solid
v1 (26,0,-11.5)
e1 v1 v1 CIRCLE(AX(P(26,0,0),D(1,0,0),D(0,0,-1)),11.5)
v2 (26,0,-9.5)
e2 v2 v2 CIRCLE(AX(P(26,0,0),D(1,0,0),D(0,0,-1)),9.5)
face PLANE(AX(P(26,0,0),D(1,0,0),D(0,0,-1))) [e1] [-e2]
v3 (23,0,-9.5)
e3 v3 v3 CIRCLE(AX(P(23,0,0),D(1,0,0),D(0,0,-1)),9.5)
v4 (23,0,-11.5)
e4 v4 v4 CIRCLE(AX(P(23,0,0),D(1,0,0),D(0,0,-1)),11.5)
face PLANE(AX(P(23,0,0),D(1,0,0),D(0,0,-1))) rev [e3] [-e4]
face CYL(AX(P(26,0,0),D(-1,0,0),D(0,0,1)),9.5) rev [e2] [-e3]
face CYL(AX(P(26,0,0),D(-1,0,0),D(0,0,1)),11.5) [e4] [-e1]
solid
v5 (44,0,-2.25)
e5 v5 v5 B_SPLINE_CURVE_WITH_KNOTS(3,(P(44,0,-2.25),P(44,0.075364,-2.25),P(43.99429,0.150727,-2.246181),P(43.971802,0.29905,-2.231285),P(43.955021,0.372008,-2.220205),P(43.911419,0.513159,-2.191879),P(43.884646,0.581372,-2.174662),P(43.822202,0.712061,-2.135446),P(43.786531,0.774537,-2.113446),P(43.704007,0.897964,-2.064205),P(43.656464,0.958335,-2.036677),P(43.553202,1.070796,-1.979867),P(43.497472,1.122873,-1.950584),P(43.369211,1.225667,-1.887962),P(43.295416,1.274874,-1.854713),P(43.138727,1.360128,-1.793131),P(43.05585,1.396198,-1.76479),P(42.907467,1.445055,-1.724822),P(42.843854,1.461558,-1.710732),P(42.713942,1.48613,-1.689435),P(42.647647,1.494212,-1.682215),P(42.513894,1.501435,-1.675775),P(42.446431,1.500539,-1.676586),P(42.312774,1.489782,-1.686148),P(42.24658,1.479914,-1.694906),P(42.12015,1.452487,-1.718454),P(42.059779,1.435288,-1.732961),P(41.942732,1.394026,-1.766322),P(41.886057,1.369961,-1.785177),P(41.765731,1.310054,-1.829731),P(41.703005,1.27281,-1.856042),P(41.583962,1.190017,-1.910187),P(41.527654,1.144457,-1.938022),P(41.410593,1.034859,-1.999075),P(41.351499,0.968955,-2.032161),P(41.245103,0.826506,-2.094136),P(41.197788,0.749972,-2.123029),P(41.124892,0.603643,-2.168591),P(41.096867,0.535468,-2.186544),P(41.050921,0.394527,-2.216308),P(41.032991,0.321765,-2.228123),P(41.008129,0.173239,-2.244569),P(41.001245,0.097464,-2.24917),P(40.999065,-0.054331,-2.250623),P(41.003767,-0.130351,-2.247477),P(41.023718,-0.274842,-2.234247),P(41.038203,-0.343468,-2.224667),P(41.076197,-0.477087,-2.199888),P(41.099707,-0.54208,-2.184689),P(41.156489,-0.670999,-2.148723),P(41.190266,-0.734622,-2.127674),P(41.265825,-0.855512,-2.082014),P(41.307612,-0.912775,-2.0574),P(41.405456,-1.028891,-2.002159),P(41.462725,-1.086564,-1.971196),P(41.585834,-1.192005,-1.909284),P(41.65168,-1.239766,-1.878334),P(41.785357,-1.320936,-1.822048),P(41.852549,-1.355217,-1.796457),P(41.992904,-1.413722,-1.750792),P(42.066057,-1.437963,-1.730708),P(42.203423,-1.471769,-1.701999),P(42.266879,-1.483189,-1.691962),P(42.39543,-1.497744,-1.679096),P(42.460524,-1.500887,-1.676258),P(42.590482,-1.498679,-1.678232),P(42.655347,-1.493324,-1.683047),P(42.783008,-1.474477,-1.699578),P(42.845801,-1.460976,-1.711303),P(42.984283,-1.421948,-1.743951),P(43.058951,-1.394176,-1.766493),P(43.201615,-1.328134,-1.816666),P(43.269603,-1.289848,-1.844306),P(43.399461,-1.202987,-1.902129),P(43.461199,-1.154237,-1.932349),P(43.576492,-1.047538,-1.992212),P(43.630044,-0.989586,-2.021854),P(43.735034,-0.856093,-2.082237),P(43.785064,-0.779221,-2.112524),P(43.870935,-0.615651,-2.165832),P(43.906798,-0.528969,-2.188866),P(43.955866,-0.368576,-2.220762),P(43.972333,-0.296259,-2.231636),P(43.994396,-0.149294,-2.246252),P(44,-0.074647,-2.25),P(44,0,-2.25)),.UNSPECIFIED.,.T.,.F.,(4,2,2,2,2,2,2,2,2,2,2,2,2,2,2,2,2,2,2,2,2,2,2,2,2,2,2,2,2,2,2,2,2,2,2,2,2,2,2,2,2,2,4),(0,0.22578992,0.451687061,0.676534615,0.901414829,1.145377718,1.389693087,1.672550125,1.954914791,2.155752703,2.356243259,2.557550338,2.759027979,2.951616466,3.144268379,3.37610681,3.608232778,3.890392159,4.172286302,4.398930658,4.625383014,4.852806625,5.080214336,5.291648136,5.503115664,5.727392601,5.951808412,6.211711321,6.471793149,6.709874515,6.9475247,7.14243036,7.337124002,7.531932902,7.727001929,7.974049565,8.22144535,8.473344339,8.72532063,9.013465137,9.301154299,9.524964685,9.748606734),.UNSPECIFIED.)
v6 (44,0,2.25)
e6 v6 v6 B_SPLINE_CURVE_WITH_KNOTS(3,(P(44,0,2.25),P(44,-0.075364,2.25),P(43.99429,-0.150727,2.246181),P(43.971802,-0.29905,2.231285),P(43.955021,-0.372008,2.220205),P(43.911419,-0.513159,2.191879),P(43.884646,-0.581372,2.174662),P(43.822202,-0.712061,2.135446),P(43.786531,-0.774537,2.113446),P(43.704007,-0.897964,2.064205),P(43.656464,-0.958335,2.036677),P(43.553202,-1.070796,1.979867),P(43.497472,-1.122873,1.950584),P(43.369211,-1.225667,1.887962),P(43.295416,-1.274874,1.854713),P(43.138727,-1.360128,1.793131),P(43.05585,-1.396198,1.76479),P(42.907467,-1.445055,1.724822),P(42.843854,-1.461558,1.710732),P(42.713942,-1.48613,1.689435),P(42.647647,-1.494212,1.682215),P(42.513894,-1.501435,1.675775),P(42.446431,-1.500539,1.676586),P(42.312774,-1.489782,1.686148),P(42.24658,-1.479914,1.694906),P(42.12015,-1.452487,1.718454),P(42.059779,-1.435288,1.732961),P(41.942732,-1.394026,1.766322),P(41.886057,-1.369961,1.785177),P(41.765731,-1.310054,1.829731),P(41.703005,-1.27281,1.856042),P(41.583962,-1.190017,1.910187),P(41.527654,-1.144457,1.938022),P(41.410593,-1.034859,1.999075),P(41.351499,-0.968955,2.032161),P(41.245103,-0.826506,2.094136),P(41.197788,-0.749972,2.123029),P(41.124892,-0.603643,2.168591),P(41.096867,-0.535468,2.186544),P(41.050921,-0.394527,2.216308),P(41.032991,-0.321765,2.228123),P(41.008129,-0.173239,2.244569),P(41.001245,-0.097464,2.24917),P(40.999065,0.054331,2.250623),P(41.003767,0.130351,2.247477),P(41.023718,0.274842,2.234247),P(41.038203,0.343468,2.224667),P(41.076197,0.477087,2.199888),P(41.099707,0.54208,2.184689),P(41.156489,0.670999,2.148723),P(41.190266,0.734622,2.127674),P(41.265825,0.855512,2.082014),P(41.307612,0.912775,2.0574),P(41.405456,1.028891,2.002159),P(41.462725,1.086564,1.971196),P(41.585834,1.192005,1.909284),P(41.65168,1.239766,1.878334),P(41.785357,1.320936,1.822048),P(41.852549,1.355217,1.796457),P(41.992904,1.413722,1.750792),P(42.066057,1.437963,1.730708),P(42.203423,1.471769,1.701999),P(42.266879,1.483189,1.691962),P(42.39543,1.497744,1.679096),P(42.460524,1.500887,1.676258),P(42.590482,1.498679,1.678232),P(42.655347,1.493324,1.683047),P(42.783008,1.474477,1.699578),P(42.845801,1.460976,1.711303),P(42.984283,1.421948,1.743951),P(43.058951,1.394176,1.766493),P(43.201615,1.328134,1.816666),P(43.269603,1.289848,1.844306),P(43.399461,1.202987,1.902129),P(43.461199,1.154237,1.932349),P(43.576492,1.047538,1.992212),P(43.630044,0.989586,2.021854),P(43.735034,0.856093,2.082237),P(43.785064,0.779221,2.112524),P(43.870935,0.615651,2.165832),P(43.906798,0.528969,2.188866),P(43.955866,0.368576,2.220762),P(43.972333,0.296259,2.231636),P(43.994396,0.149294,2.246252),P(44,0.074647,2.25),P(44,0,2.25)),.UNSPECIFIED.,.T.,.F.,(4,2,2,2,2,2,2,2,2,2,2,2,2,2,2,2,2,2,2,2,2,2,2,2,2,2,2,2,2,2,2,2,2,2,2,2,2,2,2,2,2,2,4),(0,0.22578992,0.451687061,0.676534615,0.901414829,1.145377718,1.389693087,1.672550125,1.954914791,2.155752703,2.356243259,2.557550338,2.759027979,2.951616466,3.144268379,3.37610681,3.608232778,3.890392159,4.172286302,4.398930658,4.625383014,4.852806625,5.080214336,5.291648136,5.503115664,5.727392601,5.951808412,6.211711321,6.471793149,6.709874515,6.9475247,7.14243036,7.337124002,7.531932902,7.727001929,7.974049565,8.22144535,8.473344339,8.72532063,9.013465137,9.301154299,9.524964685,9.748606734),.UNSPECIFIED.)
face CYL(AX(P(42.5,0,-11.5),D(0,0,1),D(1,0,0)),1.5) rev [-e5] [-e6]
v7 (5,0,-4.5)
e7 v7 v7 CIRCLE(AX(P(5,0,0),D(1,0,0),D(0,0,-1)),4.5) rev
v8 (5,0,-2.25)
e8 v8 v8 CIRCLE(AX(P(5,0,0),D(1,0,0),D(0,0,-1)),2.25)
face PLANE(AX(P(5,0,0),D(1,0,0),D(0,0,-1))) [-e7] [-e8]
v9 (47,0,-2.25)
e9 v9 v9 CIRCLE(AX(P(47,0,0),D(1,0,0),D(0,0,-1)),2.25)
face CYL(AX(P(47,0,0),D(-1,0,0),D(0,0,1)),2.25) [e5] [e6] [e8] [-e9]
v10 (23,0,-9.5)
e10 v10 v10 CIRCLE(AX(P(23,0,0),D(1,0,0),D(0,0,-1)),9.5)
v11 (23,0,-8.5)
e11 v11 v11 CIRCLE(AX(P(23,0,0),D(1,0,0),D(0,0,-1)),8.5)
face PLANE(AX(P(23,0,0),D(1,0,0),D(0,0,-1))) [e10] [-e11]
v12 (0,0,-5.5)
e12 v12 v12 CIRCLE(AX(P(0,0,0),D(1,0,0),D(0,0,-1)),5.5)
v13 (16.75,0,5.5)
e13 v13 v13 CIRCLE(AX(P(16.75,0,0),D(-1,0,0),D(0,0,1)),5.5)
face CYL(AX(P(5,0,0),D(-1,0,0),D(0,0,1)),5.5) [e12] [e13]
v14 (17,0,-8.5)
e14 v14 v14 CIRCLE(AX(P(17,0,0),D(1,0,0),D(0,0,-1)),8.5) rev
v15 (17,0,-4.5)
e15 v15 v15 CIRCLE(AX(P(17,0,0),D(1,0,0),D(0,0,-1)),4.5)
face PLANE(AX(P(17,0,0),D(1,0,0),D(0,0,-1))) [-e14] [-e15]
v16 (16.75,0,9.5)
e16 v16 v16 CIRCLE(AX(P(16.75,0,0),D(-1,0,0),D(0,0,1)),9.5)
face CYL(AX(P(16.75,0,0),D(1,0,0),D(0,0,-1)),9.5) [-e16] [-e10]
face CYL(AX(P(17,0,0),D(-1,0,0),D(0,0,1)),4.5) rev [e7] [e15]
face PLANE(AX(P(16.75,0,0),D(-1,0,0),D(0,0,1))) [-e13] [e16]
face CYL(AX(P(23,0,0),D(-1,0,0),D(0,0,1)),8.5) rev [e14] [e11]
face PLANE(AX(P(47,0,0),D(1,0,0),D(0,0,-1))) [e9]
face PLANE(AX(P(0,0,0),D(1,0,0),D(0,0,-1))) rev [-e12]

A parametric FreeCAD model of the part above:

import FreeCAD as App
import Part
import Sketcher
from FreeCAD import Vector

doc = App.newDocument("Part")
body = doc.addObject("PartDesign::Body", "Body")

# Sketch on YZ plane
sketch1 = doc.addObject("Sketcher::SketchObject", "Sketch")
body.addObject(sketch1)
sketch1.AttachmentSupport = (doc.YZ_Plane, [""])
sketch1.MapMode = "FlatFace"
sketch1.addGeometry(Part.Circle(Vector(0, 0, 0), Vector(0, 0, 1), 6), False)
sketch1.addConstraint([
    Sketcher.Constraint("Coincident", 0, 3, -1, 1),
    Sketcher.Constraint("Diameter", 0, 11.0),
])
pad1 = doc.addObject("PartDesign::Pad", "Pad")
body.addObject(pad1)
pad1.Profile = sketch1
pad1.Length = 5

# Sketch on YZ plane
sketch2 = doc.addObject("Sketcher::SketchObject", "Sketch001")
body.addObject(sketch2)
sketch2.AttachmentSupport = (doc.YZ_Plane, [""])
sketch2.MapMode = "FlatFace"
sketch2.AttachmentOffset = App.Placement(Vector(0, 0, 5), App.Rotation())
sketch2.addGeometry([
    Part.Circle(Vector(0, 0, 0), Vector(0, 0, 1), 5.5),
    Part.Circle(Vector(0, 0, 0), Vector(0, 0, 1), 4.5),
], False)
sketch2.addConstraint([
    Sketcher.Constraint("Coincident", 0, 3, -1, 1),
    Sketcher.Constraint("Coincident", 1, 3, -1, 1),
    Sketcher.Constraint("Diameter", 0, 11.0),
    Sketcher.Constraint("Diameter", 1, 9.0),
])
pad2 = doc.addObject("PartDesign::Pad", "Pad001")
body.addObject(pad2)
pad2.Profile = sketch2
pad2.Length = 12

# Sketch on YZ plane
sketch3 = doc.addObject("Sketcher::SketchObject", "Sketch002")
body.addObject(sketch3)
sketch3.AttachmentSupport = (doc.YZ_Plane, [""])
sketch3.MapMode = "FlatFace"
sketch3.AttachmentOffset = App.Placement(Vector(0, 0, 5), App.Rotation())
sketch3.addGeometry(Part.Circle(Vector(0, 0, 0), Vector(0, 0, 1), 2.2), False)
sketch3.addConstraint([
    Sketcher.Constraint("Coincident", 0, 3, -1, 1),
    Sketcher.Constraint("Diameter", 0, 4.5),
])
pad3 = doc.addObject("PartDesign::Pad", "Pad002")
body.addObject(pad3)
pad3.Profile = sketch3
pad3.Length = 42
body2 = doc.addObject("PartDesign::Body", "Body001")

# Sketch on YZ plane
sketch4 = doc.addObject("Sketcher::SketchObject", "Sketch003")
body2.addObject(sketch4)
sketch4.AttachmentSupport = (doc.getObject("YZ_Plane001"), [""])
sketch4.MapMode = "FlatFace"
sketch4.AttachmentOffset = App.Placement(Vector(0, 0, 17), App.Rotation())
sketch4.addGeometry([
    Part.Circle(Vector(0, 0, 0), Vector(0, 0, 1), 10),
    Part.Circle(Vector(0, 0, 0), Vector(0, 0, 1), 8),
], False)
sketch4.addConstraint([
    Sketcher.Constraint("Coincident", 0, 3, -1, 1),
    Sketcher.Constraint("Coincident", 1, 3, -1, 1),
    Sketcher.Constraint("Diameter", 0, 19.0),
    Sketcher.Constraint("Diameter", 1, 17.0),
])
pad4 = doc.addObject("PartDesign::Pad", "Pad003")
body2.addObject(pad4)
pad4.Profile = sketch4
pad4.Length = 6
body.AllowCompound = True
doc.recompute()

boolean = doc.addObject("PartDesign::Boolean", "Boolean")
body.addObject(boolean)
boolean.Type = "Fuse"
boolean.addObjects([body2])

# Sketch on YZ plane
sketch5 = doc.addObject("Sketcher::SketchObject", "Sketch004")
body.addObject(sketch5)
sketch5.AttachmentSupport = (doc.YZ_Plane, [""])
sketch5.MapMode = "FlatFace"
sketch5.AttachmentOffset = App.Placement(Vector(0, 0, 17), App.Rotation())
sketch5.addGeometry(Part.Circle(Vector(0, 0, 0), Vector(0, 0, 1), 10), False)
sketch5.addConstraint([
    Sketcher.Constraint("Coincident", 0, 3, -1, 1),
    Sketcher.Constraint("Diameter", 0, 19.0),
])
pad5 = doc.addObject("PartDesign::Pad", "Pad004")
body.addObject(pad5)
pad5.Profile = sketch5
pad5.Length = 0.25
pad5.Reversed = True

# Sketch on XY plane
sketch6 = doc.addObject("Sketcher::SketchObject", "Sketch005")
body.addObject(sketch6)
sketch6.AttachmentSupport = (doc.XY_Plane, [""])
sketch6.MapMode = "FlatFace"
sketch6.addGeometry(Part.Circle(Vector(42.5, 0, 0), Vector(0, 0, 1), 1.5), False)
sketch6.addConstraint([
    Sketcher.Constraint("PointOnObject", 0, 3, -1),
    Sketcher.Constraint("Diameter", 0, 3.0),
    Sketcher.Constraint("DistanceX", -1, 1, 0, 3, 42.5),
])
pocket1 = doc.addObject("PartDesign::Pocket", "Pocket")
body.addObject(pocket1)
pocket1.Profile = sketch6
pocket1.Type = "ThroughAll"
pocket1.Midplane = True

# Sketch on YZ plane
sketch7 = doc.addObject("Sketcher::SketchObject", "Sketch006")
body.addObject(sketch7)
sketch7.AttachmentSupport = (doc.YZ_Plane, [""])
sketch7.MapMode = "FlatFace"
sketch7.AttachmentOffset = App.Placement(Vector(0, 0, 17), App.Rotation())
sketch7.addGeometry([
    Part.Circle(Vector(0, 0, 0), Vector(0, 0, 1), 4.5),
    Part.Circle(Vector(0, 0, 0), Vector(0, 0, 1), 2.2),
], False)
sketch7.addConstraint([
    Sketcher.Constraint("Coincident", 0, 3, -1, 1),
    Sketcher.Constraint("Coincident", 1, 3, -1, 1),
    Sketcher.Constraint("Diameter", 0, 9.0),
    Sketcher.Constraint("Diameter", 1, 4.5),
])
pocket2 = doc.addObject("PartDesign::Pocket", "Pocket001")
body.addObject(pocket2)
pocket2.Profile = sketch7
pocket2.Length = 1
body3 = doc.addObject("PartDesign::Body", "Body002")

# Sketch on YZ plane
sketch8 = doc.addObject("Sketcher::SketchObject", "Sketch007")
body3.addObject(sketch8)
sketch8.AttachmentSupport = (doc.getObject("YZ_Plane002"), [""])
sketch8.MapMode = "FlatFace"
sketch8.AttachmentOffset = App.Placement(Vector(0, 0, 23), App.Rotation())
sketch8.addGeometry([
    Part.Circle(Vector(0, 0, 0), Vector(0, 0, 1), 12),
    Part.Circle(Vector(0, 0, 0), Vector(0, 0, 1), 10),
], False)
sketch8.addConstraint([
    Sketcher.Constraint("Coincident", 0, 3, -1, 1),
    Sketcher.Constraint("Coincident", 1, 3, -1, 1),
    Sketcher.Constraint("Diameter", 0, 23.0),
    Sketcher.Constraint("Diameter", 1, 19.0),
])
pad6 = doc.addObject("PartDesign::Pad", "Pad005")
body3.addObject(pad6)
pad6.Profile = sketch8
pad6.Length = 3

doc.recompute()
